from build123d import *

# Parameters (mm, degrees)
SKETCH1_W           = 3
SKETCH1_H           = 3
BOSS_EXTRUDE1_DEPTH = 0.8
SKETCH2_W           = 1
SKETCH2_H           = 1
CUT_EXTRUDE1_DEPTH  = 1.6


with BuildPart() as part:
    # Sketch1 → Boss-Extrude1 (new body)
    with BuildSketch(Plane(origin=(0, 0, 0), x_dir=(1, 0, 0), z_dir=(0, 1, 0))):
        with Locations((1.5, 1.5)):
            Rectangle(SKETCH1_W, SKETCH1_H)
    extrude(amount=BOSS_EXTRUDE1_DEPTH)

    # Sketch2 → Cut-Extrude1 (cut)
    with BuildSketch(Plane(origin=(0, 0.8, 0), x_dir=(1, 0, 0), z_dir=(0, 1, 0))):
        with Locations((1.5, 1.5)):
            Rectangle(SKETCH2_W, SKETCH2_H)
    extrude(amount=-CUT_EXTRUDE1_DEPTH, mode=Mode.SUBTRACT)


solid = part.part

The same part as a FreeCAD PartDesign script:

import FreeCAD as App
import Part
import Sketcher

V = App.Vector

doc = App.newDocument("Part")
body = doc.addObject("PartDesign::Body", "Body")

# Sketch on XZ plane
sketch1 = doc.addObject("Sketcher::SketchObject", "Sketch")
body.addObject(sketch1)
sketch1.AttachmentSupport = (doc.XZ_Plane, [""])
sketch1.MapMode = "FlatFace"
sketch1.addGeometry([
    Part.LineSegment(V(0, -3, 0), V(0, 0, 0)),
    Part.LineSegment(V(0, 0, 0), V(3, 0, 0)),
    Part.LineSegment(V(3, 0, 0), V(3, -3, 0)),
    Part.LineSegment(V(3, -3, 0), V(0, -3, 0)),
], False)
sketch1.addConstraint([
    Sketcher.Constraint("Coincident", 0, 2, 1, 1),
    Sketcher.Constraint("Coincident", 1, 2, 2, 1),
    Sketcher.Constraint("Coincident", 2, 2, 3, 1),
    Sketcher.Constraint("Coincident", 3, 2, 0, 1),
    Sketcher.Constraint("Vertical", 0),
    Sketcher.Constraint("Horizontal", 1),
    Sketcher.Constraint("Vertical", 2),
    Sketcher.Constraint("Horizontal", 3),
    Sketcher.Constraint("Coincident", 0, 2, -1, 1),
    Sketcher.Constraint("Equal", 3, 0),
    Sketcher.Constraint("DistanceX", 1, 1, 1, 2, 3.0),
])
pad1 = doc.addObject("PartDesign::Pad", "Pad")
body.addObject(pad1)
pad1.Profile = sketch1
pad1.Length = 0.8
pad1.Reversed = True

# Sketch on XZ plane
sketch2 = doc.addObject("Sketcher::SketchObject", "Sketch001")
body.addObject(sketch2)
sketch2.AttachmentSupport = (doc.XZ_Plane, [""])
sketch2.MapMode = "FlatFace"
sketch2.AttachmentOffset = App.Placement(V(0, 0, -0.8), App.Rotation())
sketch2.addGeometry([
    Part.LineSegment(V(1, -2, 0), V(1, -1, 0)),
    Part.LineSegment(V(1, -1, 0), V(2, -1, 0)),
    Part.LineSegment(V(2, -1, 0), V(2, -2, 0)),
    Part.LineSegment(V(2, -2, 0), V(1, -2, 0)),
], False)
sketch2.addConstraint([
    Sketcher.Constraint("Coincident", 0, 2, 1, 1),
    Sketcher.Constraint("Coincident", 1, 2, 2, 1),
    Sketcher.Constraint("Coincident", 2, 2, 3, 1),
    Sketcher.Constraint("Coincident", 3, 2, 0, 1),
    Sketcher.Constraint("Vertical", 0),
    Sketcher.Constraint("Horizontal", 1),
    Sketcher.Constraint("Vertical", 2),
    Sketcher.Constraint("Horizontal", 3),
    Sketcher.Constraint("Equal", 3, 0),
    Sketcher.Constraint("DistanceX", 1, 1, 1, 2, 1.0),
    Sketcher.Constraint("DistanceX", -1, 1, 0, 2, 1.0),
    Sketcher.Constraint("DistanceY", 0, 2, -1, 1, 1.0),
])
pocket1 = doc.addObject("PartDesign::Pocket", "Pocket")
body.addObject(pocket1)
pocket1.Profile = sketch2
pocket1.Length = 1.6
pocket1.Reversed = True

doc.recompute()
